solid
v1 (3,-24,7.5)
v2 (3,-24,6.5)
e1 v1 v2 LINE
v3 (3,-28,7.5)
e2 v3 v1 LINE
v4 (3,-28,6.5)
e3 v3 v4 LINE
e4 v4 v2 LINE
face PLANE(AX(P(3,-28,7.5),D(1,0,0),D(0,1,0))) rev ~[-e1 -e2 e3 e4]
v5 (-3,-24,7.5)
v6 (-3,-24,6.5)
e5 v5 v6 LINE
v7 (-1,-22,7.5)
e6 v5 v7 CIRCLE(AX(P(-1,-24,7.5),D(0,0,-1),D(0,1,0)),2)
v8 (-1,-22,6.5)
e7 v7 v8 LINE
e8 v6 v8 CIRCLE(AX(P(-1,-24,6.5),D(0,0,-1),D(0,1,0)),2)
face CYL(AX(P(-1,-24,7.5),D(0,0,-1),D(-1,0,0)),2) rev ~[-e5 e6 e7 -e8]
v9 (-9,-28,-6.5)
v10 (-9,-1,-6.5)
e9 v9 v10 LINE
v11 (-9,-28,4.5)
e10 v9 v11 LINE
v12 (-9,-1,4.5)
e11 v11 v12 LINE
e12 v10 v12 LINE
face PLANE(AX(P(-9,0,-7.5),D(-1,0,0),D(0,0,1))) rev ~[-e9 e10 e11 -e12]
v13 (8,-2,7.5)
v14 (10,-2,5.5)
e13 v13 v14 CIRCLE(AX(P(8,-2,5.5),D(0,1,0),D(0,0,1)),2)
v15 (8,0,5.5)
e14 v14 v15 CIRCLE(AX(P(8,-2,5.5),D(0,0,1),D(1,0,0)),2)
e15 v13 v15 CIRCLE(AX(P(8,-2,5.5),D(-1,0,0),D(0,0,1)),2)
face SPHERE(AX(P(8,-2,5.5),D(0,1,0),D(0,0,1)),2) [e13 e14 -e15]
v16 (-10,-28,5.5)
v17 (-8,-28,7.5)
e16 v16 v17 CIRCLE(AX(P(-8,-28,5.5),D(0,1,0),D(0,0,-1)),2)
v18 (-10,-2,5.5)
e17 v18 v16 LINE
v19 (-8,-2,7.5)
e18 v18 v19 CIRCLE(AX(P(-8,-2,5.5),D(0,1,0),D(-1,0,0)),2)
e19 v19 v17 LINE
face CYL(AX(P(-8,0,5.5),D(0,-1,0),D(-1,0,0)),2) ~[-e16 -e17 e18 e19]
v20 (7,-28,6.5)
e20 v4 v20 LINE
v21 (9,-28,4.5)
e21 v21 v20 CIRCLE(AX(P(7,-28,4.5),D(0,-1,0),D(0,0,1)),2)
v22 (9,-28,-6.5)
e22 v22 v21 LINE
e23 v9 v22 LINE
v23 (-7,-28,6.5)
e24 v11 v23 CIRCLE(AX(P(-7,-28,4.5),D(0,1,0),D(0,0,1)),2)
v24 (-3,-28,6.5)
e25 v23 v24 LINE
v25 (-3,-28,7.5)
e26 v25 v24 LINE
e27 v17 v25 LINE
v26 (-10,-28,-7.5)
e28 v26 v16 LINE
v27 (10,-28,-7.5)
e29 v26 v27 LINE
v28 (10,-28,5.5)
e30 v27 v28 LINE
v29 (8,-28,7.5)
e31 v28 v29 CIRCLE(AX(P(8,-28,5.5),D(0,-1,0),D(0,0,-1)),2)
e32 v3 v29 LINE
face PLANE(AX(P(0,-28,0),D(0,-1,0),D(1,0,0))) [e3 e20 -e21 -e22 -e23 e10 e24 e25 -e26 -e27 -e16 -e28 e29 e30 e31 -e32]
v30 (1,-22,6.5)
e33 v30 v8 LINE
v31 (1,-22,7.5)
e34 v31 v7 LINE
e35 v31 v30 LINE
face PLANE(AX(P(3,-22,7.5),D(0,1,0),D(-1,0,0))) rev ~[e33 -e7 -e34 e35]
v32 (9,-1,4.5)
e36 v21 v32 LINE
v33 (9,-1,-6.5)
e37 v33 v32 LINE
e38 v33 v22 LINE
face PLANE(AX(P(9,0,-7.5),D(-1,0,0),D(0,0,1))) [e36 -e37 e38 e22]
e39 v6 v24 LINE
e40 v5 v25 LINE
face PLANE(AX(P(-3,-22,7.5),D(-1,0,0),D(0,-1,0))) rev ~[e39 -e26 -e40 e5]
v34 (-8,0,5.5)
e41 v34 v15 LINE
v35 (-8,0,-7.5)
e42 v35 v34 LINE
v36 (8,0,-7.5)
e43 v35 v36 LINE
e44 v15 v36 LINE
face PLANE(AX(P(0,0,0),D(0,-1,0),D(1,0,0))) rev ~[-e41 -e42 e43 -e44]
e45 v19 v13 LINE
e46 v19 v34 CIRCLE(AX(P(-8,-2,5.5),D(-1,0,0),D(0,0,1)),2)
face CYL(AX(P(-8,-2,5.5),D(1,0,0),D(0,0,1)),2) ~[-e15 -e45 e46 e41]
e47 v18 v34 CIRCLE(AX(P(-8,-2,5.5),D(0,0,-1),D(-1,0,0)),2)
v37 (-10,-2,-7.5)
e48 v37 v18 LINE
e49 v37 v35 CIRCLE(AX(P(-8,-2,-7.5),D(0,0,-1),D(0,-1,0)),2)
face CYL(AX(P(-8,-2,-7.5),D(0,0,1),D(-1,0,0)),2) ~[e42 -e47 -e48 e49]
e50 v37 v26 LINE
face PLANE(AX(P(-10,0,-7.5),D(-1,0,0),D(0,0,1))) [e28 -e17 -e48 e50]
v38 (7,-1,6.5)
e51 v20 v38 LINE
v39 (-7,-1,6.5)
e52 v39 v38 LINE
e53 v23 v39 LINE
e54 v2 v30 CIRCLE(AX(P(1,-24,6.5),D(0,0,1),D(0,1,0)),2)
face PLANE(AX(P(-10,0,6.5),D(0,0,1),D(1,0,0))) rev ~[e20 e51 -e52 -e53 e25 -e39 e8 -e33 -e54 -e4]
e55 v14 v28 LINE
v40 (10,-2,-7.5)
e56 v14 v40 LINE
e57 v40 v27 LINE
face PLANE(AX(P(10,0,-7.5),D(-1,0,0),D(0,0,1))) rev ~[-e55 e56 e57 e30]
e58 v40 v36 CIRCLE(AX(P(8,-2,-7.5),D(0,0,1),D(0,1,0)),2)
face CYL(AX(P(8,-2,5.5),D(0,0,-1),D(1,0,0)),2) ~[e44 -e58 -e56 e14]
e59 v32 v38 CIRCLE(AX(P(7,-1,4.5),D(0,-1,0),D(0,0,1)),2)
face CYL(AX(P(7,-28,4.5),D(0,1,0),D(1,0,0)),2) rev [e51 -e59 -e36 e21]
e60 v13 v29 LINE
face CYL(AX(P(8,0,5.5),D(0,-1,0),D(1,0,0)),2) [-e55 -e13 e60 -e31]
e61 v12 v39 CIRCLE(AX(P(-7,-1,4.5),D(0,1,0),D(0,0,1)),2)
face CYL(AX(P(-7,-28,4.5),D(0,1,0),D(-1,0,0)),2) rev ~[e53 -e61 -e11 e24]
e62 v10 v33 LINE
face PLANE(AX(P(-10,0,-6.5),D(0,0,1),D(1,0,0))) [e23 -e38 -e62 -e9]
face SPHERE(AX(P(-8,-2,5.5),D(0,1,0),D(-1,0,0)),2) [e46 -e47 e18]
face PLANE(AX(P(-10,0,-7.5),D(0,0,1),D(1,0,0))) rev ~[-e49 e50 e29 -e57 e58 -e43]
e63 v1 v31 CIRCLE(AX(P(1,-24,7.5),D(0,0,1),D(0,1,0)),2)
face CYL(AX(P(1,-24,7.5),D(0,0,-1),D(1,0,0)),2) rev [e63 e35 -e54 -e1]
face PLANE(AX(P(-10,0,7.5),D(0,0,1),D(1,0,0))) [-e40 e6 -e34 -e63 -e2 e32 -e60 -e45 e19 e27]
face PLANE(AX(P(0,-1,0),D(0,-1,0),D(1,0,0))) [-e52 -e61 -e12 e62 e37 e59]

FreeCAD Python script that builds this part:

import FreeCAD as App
import Part
import Sketcher


def edges_at(feature, points):
    """Names of the edges that pass closest to the given points."""
    edges = feature.Shape.Edges
    near = lambda p: min(range(len(edges)), key=lambda i: edges[i].distToShape(Part.Vertex(*p))[0])
    return sorted({f"Edge{near(p) + 1}" for p in points})


def faces_at(feature, points):
    """Names of the faces that lie closest to the given points."""
    faces = feature.Shape.Faces
    near = lambda p: min(range(len(faces)), key=lambda i: faces[i].distToShape(Part.Vertex(*p))[0])
    return sorted({f"Face{near(p) + 1}" for p in points})


def add_polygon(sketch, points):
    """Adds a closed chain of lines whose ends are joined by coincident constraints."""
    first, n = sketch.GeometryCount, len(points)
    for a, b in zip(points, points[1:] + points[:1]):
        sketch.addGeometry(Part.LineSegment(App.Vector(*a, 0), App.Vector(*b, 0)), False)
    for i in range(n):
        sketch.addConstraint(Sketcher.Constraint("Coincident", first + i, 2, first + (i + 1) % n, 1))

doc = App.newDocument("Part")
body = doc.addObject("PartDesign::Body", "Body")

sketch1 = body.newObject("Sketcher::SketchObject", "Sketch")
sketch1.AttachmentSupport = (doc.getObject("XZ_Plane"), [""])
sketch1.MapMode = "FlatFace"
add_polygon(sketch1, [(-10, 8), (-10, -8), (10, -8), (10, 8)])
sketch1.addConstraint(Sketcher.Constraint("Vertical", 0))
sketch1.addConstraint(Sketcher.Constraint("Horizontal", 1))
sketch1.addConstraint(Sketcher.Constraint("Vertical", 2))
sketch1.addConstraint(Sketcher.Constraint("Horizontal", 3))
sketch1.addConstraint(Sketcher.Constraint("Symmetric", 0, 2, 2, 2, -1, 1))
sketch1.addConstraint(Sketcher.Constraint("DistanceX", 1, 1, 1, 2, 20.0))
sketch1.addConstraint(Sketcher.Constraint("DistanceY", 0, 2, 0, 1, 15.0))
pad1 = body.newObject("PartDesign::Pad", "Pad")
pad1.Profile = sketch1
pad1.Length = 28
doc.recompute()

thickness = body.newObject("PartDesign::Thickness", "Thickness")
thickness.Base = (pad1, faces_at(pad1, [(0, -28, 0)]))
thickness.Value = 1
thickness.Reversed = True
thickness.Join = "Arc"
doc.recompute()

fillet = body.newObject("PartDesign::Fillet", "Fillet")
fillet.Base = (thickness, edges_at(thickness, [(-9, -14.5, 6.5), (9, -14.5, 6.5)]))
fillet.Radius = 2
doc.recompute()

fillet2 = body.newObject("PartDesign::Fillet", "Fillet001")
fillet2.Base = (fillet, edges_at(fillet, [(10, -14, 7.5), (-10, -14, 7.5)]))
fillet2.Radius = 2
doc.recompute()

fillet3 = body.newObject("PartDesign::Fillet", "Fillet002")
fillet3.Base = (fillet2, edges_at(fillet2, [(0, 0, 7.5), (10, 0, -1), (-10, 0, -1)]))
fillet3.Radius = 2

sketch2 = body.newObject("Sketcher::SketchObject", "Sketch001")
sketch2.AttachmentSupport = (doc.getObject("XY_Plane"), [""])
sketch2.MapMode = "FlatFace"
sketch2.AttachmentOffset = App.Placement(App.Vector(0, 0, 7.5), App.Rotation())
add_polygon(sketch2, [(3, -28), (3, -22), (-3, -22), (-3, -28)])
sketch2.addConstraint(Sketcher.Constraint("Vertical", 0))
sketch2.addConstraint(Sketcher.Constraint("Horizontal", 1))
sketch2.addConstraint(Sketcher.Constraint("Vertical", 2))
sketch2.addConstraint(Sketcher.Constraint("Horizontal", 3))
sketch2.addConstraint(Sketcher.Constraint("Equal", 3, 0))
sketch2.addConstraint(Sketcher.Constraint("DistanceX", 1, 2, 1, 1, 6.0))
sketch2.addConstraint(Sketcher.Constraint("DistanceX", -1, 1, 0, 2, 3.0))
sketch2.addConstraint(Sketcher.Constraint("DistanceY", 0, 2, -1, 1, 22.0))
pocket1 = body.newObject("PartDesign::Pocket", "Pocket")
pocket1.Profile = sketch2
pocket1.Length = 1
doc.recompute()

fillet4 = body.newObject("PartDesign::Fillet", "Fillet003")
fillet4.Base = (pocket1, edges_at(pocket1, [(-3, -22, 7), (3, -22, 7)]))
fillet4.Radius = 2

doc.recompute()
